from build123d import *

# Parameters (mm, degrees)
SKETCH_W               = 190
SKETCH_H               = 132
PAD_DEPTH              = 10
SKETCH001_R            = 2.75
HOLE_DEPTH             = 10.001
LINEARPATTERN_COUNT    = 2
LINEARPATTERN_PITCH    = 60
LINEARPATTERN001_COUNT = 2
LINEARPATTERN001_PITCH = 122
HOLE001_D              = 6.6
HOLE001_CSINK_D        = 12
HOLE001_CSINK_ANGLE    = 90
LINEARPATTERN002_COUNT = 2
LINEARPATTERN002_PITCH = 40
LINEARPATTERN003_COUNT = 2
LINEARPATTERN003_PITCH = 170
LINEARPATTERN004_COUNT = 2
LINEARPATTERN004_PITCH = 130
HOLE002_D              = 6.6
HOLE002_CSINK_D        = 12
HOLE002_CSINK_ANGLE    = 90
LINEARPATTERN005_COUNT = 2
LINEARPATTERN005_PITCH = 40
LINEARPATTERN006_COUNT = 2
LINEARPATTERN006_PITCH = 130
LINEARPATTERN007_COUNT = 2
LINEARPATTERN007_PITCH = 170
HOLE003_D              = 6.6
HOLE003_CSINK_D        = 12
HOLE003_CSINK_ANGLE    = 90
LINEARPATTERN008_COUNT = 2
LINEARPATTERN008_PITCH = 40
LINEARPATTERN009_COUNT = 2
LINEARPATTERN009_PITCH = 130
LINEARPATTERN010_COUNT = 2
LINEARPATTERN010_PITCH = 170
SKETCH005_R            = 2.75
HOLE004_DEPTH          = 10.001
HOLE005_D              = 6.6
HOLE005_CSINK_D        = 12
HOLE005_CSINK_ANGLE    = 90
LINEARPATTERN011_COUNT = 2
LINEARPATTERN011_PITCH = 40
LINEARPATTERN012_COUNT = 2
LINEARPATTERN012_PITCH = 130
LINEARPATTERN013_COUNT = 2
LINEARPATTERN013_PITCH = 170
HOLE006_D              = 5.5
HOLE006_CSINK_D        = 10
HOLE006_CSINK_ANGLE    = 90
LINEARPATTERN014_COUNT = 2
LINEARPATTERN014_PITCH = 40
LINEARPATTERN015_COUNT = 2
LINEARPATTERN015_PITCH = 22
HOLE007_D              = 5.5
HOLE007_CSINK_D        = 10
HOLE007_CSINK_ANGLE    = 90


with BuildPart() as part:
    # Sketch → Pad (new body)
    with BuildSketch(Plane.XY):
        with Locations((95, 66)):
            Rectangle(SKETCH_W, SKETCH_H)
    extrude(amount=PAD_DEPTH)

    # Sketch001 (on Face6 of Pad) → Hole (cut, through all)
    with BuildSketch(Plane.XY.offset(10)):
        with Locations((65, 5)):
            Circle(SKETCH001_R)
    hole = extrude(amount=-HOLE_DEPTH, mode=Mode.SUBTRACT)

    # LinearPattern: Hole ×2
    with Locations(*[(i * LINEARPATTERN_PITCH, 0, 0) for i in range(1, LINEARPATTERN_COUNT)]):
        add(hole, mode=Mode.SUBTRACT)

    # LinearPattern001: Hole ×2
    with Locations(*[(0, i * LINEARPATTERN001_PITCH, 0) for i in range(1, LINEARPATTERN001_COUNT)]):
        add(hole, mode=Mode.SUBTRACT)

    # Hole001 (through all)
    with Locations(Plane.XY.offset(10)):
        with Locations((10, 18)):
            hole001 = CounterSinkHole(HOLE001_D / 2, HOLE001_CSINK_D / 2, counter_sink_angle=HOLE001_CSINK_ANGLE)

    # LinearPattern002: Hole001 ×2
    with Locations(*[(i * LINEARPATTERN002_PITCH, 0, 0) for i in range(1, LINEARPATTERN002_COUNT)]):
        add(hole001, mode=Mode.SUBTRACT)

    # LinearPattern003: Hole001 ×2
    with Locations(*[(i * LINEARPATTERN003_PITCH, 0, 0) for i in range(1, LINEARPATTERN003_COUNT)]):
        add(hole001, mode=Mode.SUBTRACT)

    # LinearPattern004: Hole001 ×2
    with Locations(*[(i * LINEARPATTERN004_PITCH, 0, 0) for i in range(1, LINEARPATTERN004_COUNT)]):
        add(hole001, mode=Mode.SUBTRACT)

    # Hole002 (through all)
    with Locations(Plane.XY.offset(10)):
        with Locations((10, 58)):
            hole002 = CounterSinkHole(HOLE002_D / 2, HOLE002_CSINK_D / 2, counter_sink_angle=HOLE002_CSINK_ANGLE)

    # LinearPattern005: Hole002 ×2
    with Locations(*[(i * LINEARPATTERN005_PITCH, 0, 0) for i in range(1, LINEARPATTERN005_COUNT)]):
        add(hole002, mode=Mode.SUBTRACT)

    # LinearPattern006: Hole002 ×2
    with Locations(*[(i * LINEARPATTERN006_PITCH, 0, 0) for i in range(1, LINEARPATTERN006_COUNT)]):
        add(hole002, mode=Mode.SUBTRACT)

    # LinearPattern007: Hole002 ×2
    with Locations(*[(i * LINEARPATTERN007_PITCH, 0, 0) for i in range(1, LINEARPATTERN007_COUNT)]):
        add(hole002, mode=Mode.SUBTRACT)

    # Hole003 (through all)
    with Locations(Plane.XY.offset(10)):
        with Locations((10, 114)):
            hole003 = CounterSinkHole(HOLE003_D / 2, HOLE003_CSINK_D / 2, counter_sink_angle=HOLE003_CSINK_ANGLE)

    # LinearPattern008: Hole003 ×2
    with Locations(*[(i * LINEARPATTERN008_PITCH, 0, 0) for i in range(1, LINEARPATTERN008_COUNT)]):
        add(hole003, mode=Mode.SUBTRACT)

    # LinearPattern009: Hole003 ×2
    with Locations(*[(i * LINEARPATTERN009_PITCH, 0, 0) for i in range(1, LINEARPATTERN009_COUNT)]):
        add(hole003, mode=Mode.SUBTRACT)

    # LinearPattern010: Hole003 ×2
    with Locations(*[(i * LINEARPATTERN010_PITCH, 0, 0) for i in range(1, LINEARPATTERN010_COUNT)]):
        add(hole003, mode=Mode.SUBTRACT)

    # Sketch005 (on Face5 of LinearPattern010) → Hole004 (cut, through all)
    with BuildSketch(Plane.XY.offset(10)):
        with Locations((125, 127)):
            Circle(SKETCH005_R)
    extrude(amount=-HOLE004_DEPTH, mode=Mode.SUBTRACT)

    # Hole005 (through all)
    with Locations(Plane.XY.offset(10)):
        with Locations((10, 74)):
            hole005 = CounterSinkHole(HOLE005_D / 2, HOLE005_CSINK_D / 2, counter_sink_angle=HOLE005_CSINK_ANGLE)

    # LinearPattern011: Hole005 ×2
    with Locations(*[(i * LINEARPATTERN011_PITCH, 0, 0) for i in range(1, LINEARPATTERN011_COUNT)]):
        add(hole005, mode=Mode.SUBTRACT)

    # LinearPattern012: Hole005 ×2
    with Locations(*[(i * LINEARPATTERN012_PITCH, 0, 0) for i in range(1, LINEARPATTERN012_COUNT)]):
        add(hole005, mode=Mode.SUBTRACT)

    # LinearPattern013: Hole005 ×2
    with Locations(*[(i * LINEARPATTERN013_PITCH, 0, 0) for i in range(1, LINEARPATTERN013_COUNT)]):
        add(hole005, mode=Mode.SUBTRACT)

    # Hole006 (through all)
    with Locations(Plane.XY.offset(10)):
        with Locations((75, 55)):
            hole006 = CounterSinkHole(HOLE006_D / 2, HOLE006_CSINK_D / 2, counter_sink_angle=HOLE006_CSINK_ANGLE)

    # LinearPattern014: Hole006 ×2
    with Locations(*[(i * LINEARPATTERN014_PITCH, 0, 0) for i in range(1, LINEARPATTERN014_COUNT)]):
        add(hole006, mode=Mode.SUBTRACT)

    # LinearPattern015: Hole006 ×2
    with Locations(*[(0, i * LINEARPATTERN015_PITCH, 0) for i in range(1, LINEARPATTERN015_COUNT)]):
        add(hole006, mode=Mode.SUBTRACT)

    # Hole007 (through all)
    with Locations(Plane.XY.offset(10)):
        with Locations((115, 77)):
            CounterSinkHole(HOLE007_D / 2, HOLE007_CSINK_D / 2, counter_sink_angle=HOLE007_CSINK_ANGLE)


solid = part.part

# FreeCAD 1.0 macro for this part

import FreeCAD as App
import Part
import Sketcher

V = App.Vector
Q = App.Units.Quantity


def add_polygon(sketch, points):
    """Adds a closed chain of lines whose ends are joined by coincident constraints."""
    first, n = sketch.GeometryCount, len(points)
    for a, b in zip(points, points[1:] + points[:1]):
        sketch.addGeometry(Part.LineSegment(App.Vector(*a, 0), App.Vector(*b, 0)), False)
    for i in range(n):
        sketch.addConstraint(Sketcher.Constraint("Coincident", first + i, 2, first + (i + 1) % n, 1))

doc = App.newDocument("Part")
params = doc.addObject("Spreadsheet::Sheet", "Params")
for row, (alias, value) in enumerate([
    ("sketch1_width", "190 mm"),
    ("sketch1_height", "132 mm"),
    ("pad1_length", "10 mm"),
    ("sketch2_diameter", "5.5 mm"),
    ("linearpattern_pitch", "60 mm"),
    ("linearpattern2_pitch", "122 mm"),
    ("sketch3_diameter", "6.6 mm"),
    ("hole_diameter", "6.6 mm"),
    ("hole_csink_diameter", "12 mm"),
    ("linearpattern3_pitch", "40 mm"),
    ("linearpattern4_pitch", "170 mm"),
    ("linearpattern5_pitch", "130 mm"),
    ("sketch4_diameter", "6.6 mm"),
    ("hole2_diameter", "6.6 mm"),
    ("hole2_csink_diameter", "12 mm"),
    ("linearpattern6_pitch", "40 mm"),
    ("linearpattern7_pitch", "130 mm"),
    ("linearpattern8_pitch", "170 mm"),
    ("sketch5_diameter", "6.6 mm"),
    ("hole3_diameter", "6.6 mm"),
    ("hole3_csink_diameter", "12 mm"),
    ("linearpattern9_pitch", "40 mm"),
    ("linearpattern10_pitch", "130 mm"),
    ("linearpattern11_pitch", "170 mm"),
    ("sketch6_diameter", "5.5 mm"),
    ("sketch7_diameter", "6.6 mm"),
    ("hole4_diameter", "6.6 mm"),
    ("hole4_csink_diameter", "12 mm"),
    ("linearpattern12_pitch", "40 mm"),
    ("linearpattern13_pitch", "130 mm"),
    ("linearpattern14_pitch", "170 mm"),
    ("sketch8_diameter", "5.5 mm"),
    ("hole5_diameter", "5.5 mm"),
    ("hole5_csink_diameter", "10 mm"),
    ("linearpattern15_pitch", "40 mm"),
    ("linearpattern16_pitch", "22 mm"),
    ("sketch9_diameter", "5.5 mm"),
    ("hole6_diameter", "5.5 mm"),
    ("hole6_csink_diameter", "10 mm"),
], start=1):
    params.set(f"A{row}", alias)
    params.set(f"B{row}", "=" + value)
    params.setAlias(f"B{row}", alias)

body = doc.addObject("PartDesign::Body", "Body")

# Sketch on XY plane
sketch1 = doc.addObject("Sketcher::SketchObject", "Sketch")
body.addObject(sketch1)
sketch1.AttachmentSupport = (doc.XY_Plane, [""])
sketch1.MapMode = "FlatFace"
add_polygon(sketch1, [(0, 132), (0, 0), (190, 0), (190, 132)])  # lines 0-3
sketch1.addConstraint(Sketcher.Constraint("Vertical", 0))
sketch1.addConstraint(Sketcher.Constraint("Horizontal", 1))
sketch1.addConstraint(Sketcher.Constraint("Vertical", 2))
sketch1.addConstraint(Sketcher.Constraint("Horizontal", 3))
sketch1.addConstraint(Sketcher.Constraint("Coincident", 0, 2, -1, 1))
sketch1.addConstraint(Sketcher.Constraint("DistanceX", 1, 1, 1, 2, Q("190 mm")))
sketch1.addConstraint(Sketcher.Constraint("DistanceY", 0, 2, 0, 1, Q("132 mm")))
sketch1.setExpression("Constraints[9]", "Params.sketch1_width")
sketch1.setExpression("Constraints[10]", "Params.sketch1_height")
pad1 = doc.addObject("PartDesign::Pad", "Pad")
body.addObject(pad1)
pad1.Profile = sketch1
pad1.setExpression("Length", "Params.pad1_length")

# Sketch on XY plane
sketch2 = doc.addObject("Sketcher::SketchObject", "Sketch001")
body.addObject(sketch2)
sketch2.AttachmentSupport = (doc.XY_Plane, [""])
sketch2.MapMode = "FlatFace"
sketch2.AttachmentOffset = App.Placement(V(0, 0, 10), App.Rotation())
sketch2.addGeometry(Part.Circle(V(65, 5, 0), V(0, 0, 1), 2.75), False)
sketch2.addConstraint(Sketcher.Constraint("Diameter", 0, Q("5.5 mm")))
sketch2.addConstraint(Sketcher.Constraint("DistanceX", -1, 1, 0, 3, Q("65 mm")))
sketch2.addConstraint(Sketcher.Constraint("DistanceY", -1, 1, 0, 3, Q("5 mm")))
sketch2.setExpression("Constraints[0]", "Params.sketch2_diameter")
pocket1 = doc.addObject("PartDesign::Pocket", "Pocket")
body.addObject(pocket1)
pocket1.Profile = sketch2
pocket1.Type = "ThroughAll"
doc.recompute()

linearpattern = doc.addObject("PartDesign::LinearPattern", "LinearPattern")
body.addObject(linearpattern)
linearpattern.Originals = [pocket1]
linearpattern.Direction = (doc.X_Axis, [""])
linearpattern.Mode = "offset"
linearpattern.setExpression("Offset", "Params.linearpattern_pitch")
linearpattern.Occurrences = 2
body.Tip = linearpattern
doc.recompute()

linearpattern2 = doc.addObject("PartDesign::LinearPattern", "LinearPattern001")
body.addObject(linearpattern2)
linearpattern2.Originals = [pocket1]
linearpattern2.Direction = (doc.Y_Axis, [""])
linearpattern2.Mode = "offset"
linearpattern2.setExpression("Offset", "Params.linearpattern2_pitch")
linearpattern2.Occurrences = 2
body.Tip = linearpattern2

# Sketch on XY plane
sketch3 = doc.addObject("Sketcher::SketchObject", "Sketch002")
body.addObject(sketch3)
sketch3.AttachmentSupport = (doc.XY_Plane, [""])
sketch3.MapMode = "FlatFace"
sketch3.AttachmentOffset = App.Placement(V(0, 0, 10), App.Rotation())
sketch3.addGeometry(Part.Circle(V(10, 18, 0), V(0, 0, 1), 3.3), False)
sketch3.addConstraint(Sketcher.Constraint("Diameter", 0, Q("6.6 mm")))
sketch3.addConstraint(Sketcher.Constraint("DistanceX", -1, 1, 0, 3, Q("10 mm")))
sketch3.addConstraint(Sketcher.Constraint("DistanceY", -1, 1, 0, 3, Q("18 mm")))
sketch3.setExpression("Constraints[0]", "Params.sketch3_diameter")
doc.recompute()
hole = doc.addObject("PartDesign::Hole", "Hole")
body.addObject(hole)
hole.Profile = sketch3
hole.ThreadType = "None"
hole.setExpression("Diameter", "Params.hole_diameter")
hole.DepthType = "ThroughAll"
hole.HoleCutType = "Countersink"
hole.setExpression("HoleCutDiameter", "Params.hole_csink_diameter")
hole.HoleCutCountersinkAngle = 90
doc.recompute()

linearpattern3 = doc.addObject("PartDesign::LinearPattern", "LinearPattern002")
body.addObject(linearpattern3)
linearpattern3.Originals = [hole]
linearpattern3.Direction = (doc.X_Axis, [""])
linearpattern3.Mode = "offset"
linearpattern3.setExpression("Offset", "Params.linearpattern3_pitch")
linearpattern3.Occurrences = 2
body.Tip = linearpattern3
doc.recompute()

linearpattern4 = doc.addObject("PartDesign::LinearPattern", "LinearPattern003")
body.addObject(linearpattern4)
linearpattern4.Originals = [hole]
linearpattern4.Direction = (doc.X_Axis, [""])
linearpattern4.Mode = "offset"
linearpattern4.setExpression("Offset", "Params.linearpattern4_pitch")
linearpattern4.Occurrences = 2
body.Tip = linearpattern4
doc.recompute()

linearpattern5 = doc.addObject("PartDesign::LinearPattern", "LinearPattern004")
body.addObject(linearpattern5)
linearpattern5.Originals = [hole]
linearpattern5.Direction = (doc.X_Axis, [""])
linearpattern5.Mode = "offset"
linearpattern5.setExpression("Offset", "Params.linearpattern5_pitch")
linearpattern5.Occurrences = 2
body.Tip = linearpattern5

# Sketch on XY plane
sketch4 = doc.addObject("Sketcher::SketchObject", "Sketch003")
body.addObject(sketch4)
sketch4.AttachmentSupport = (doc.XY_Plane, [""])
sketch4.MapMode = "FlatFace"
sketch4.AttachmentOffset = App.Placement(V(0, 0, 10), App.Rotation())
sketch4.addGeometry(Part.Circle(V(10, 58, 0), V(0, 0, 1), 3.3), False)
sketch4.addConstraint(Sketcher.Constraint("Diameter", 0, Q("6.6 mm")))
sketch4.addConstraint(Sketcher.Constraint("DistanceX", -1, 1, 0, 3, Q("10 mm")))
sketch4.addConstraint(Sketcher.Constraint("DistanceY", -1, 1, 0, 3, Q("58 mm")))
sketch4.setExpression("Constraints[0]", "Params.sketch4_diameter")
doc.recompute()
hole2 = doc.addObject("PartDesign::Hole", "Hole001")
body.addObject(hole2)
hole2.Profile = sketch4
hole2.ThreadType = "None"
hole2.setExpression("Diameter", "Params.hole2_diameter")
hole2.DepthType = "ThroughAll"
hole2.HoleCutType = "Countersink"
hole2.setExpression("HoleCutDiameter", "Params.hole2_csink_diameter")
hole2.HoleCutCountersinkAngle = 90
doc.recompute()

linearpattern6 = doc.addObject("PartDesign::LinearPattern", "LinearPattern005")
body.addObject(linearpattern6)
linearpattern6.Originals = [hole2]
linearpattern6.Direction = (doc.X_Axis, [""])
linearpattern6.Mode = "offset"
linearpattern6.setExpression("Offset", "Params.linearpattern6_pitch")
linearpattern6.Occurrences = 2
body.Tip = linearpattern6
doc.recompute()

linearpattern7 = doc.addObject("PartDesign::LinearPattern", "LinearPattern006")
body.addObject(linearpattern7)
linearpattern7.Originals = [hole2]
linearpattern7.Direction = (doc.X_Axis, [""])
linearpattern7.Mode = "offset"
linearpattern7.setExpression("Offset", "Params.linearpattern7_pitch")
linearpattern7.Occurrences = 2
body.Tip = linearpattern7
doc.recompute()

linearpattern8 = doc.addObject("PartDesign::LinearPattern", "LinearPattern007")
body.addObject(linearpattern8)
linearpattern8.Originals = [hole2]
linearpattern8.Direction = (doc.X_Axis, [""])
linearpattern8.Mode = "offset"
linearpattern8.setExpression("Offset", "Params.linearpattern8_pitch")
linearpattern8.Occurrences = 2
body.Tip = linearpattern8

# Sketch on XY plane
sketch5 = doc.addObject("Sketcher::SketchObject", "Sketch004")
body.addObject(sketch5)
sketch5.AttachmentSupport = (doc.XY_Plane, [""])
sketch5.MapMode = "FlatFace"
sketch5.AttachmentOffset = App.Placement(V(0, 0, 10), App.Rotation())
sketch5.addGeometry(Part.Circle(V(10, 114, 0), V(0, 0, 1), 3.3), False)
sketch5.addConstraint(Sketcher.Constraint("Diameter", 0, Q("6.6 mm")))
sketch5.addConstraint(Sketcher.Constraint("DistanceX", -1, 1, 0, 3, Q("10 mm")))
sketch5.addConstraint(Sketcher.Constraint("DistanceY", -1, 1, 0, 3, Q("114 mm")))
sketch5.setExpression("Constraints[0]", "Params.sketch5_diameter")
doc.recompute()
hole3 = doc.addObject("PartDesign::Hole", "Hole002")
body.addObject(hole3)
hole3.Profile = sketch5
hole3.ThreadType = "None"
hole3.setExpression("Diameter", "Params.hole3_diameter")
hole3.DepthType = "ThroughAll"
hole3.HoleCutType = "Countersink"
hole3.setExpression("HoleCutDiameter", "Params.hole3_csink_diameter")
hole3.HoleCutCountersinkAngle = 90
doc.recompute()

linearpattern9 = doc.addObject("PartDesign::LinearPattern", "LinearPattern008")
body.addObject(linearpattern9)
linearpattern9.Originals = [hole3]
linearpattern9.Direction = (doc.X_Axis, [""])
linearpattern9.Mode = "offset"
linearpattern9.setExpression("Offset", "Params.linearpattern9_pitch")
linearpattern9.Occurrences = 2
body.Tip = linearpattern9
doc.recompute()

linearpattern10 = doc.addObject("PartDesign::LinearPattern", "LinearPattern009")
body.addObject(linearpattern10)
linearpattern10.Originals = [hole3]
linearpattern10.Direction = (doc.X_Axis, [""])
linearpattern10.Mode = "offset"
linearpattern10.setExpression("Offset", "Params.linearpattern10_pitch")
linearpattern10.Occurrences = 2
body.Tip = linearpattern10
doc.recompute()

linearpattern11 = doc.addObject("PartDesign::LinearPattern", "LinearPattern010")
body.addObject(linearpattern11)
linearpattern11.Originals = [hole3]
linearpattern11.Direction = (doc.X_Axis, [""])
linearpattern11.Mode = "offset"
linearpattern11.setExpression("Offset", "Params.linearpattern11_pitch")
linearpattern11.Occurrences = 2
body.Tip = linearpattern11

# Sketch on XY plane
sketch6 = doc.addObject("Sketcher::SketchObject", "Sketch005")
body.addObject(sketch6)
sketch6.AttachmentSupport = (doc.XY_Plane, [""])
sketch6.MapMode = "FlatFace"
sketch6.AttachmentOffset = App.Placement(V(0, 0, 10), App.Rotation())
sketch6.addGeometry(Part.Circle(V(125, 127, 0), V(0, 0, 1), 2.75), False)
sketch6.addConstraint(Sketcher.Constraint("Diameter", 0, Q("5.5 mm")))
sketch6.addConstraint(Sketcher.Constraint("DistanceX", -1, 1, 0, 3, Q("125 mm")))
sketch6.addConstraint(Sketcher.Constraint("DistanceY", -1, 1, 0, 3, Q("127 mm")))
sketch6.setExpression("Constraints[0]", "Params.sketch6_diameter")
pocket2 = doc.addObject("PartDesign::Pocket", "Pocket001")
body.addObject(pocket2)
pocket2.Profile = sketch6
pocket2.Type = "ThroughAll"

# Sketch on XY plane
sketch7 = doc.addObject("Sketcher::SketchObject", "Sketch006")
body.addObject(sketch7)
sketch7.AttachmentSupport = (doc.XY_Plane, [""])
sketch7.MapMode = "FlatFace"
sketch7.AttachmentOffset = App.Placement(V(0, 0, 10), App.Rotation())
sketch7.addGeometry(Part.Circle(V(10, 74, 0), V(0, 0, 1), 3.3), False)
sketch7.addConstraint(Sketcher.Constraint("Diameter", 0, Q("6.6 mm")))
sketch7.addConstraint(Sketcher.Constraint("DistanceX", -1, 1, 0, 3, Q("10 mm")))
sketch7.addConstraint(Sketcher.Constraint("DistanceY", -1, 1, 0, 3, Q("74 mm")))
sketch7.setExpression("Constraints[0]", "Params.sketch7_diameter")
doc.recompute()
hole4 = doc.addObject("PartDesign::Hole", "Hole003")
body.addObject(hole4)
hole4.Profile = sketch7
hole4.ThreadType = "None"
hole4.setExpression("Diameter", "Params.hole4_diameter")
hole4.DepthType = "ThroughAll"
hole4.HoleCutType = "Countersink"
hole4.setExpression("HoleCutDiameter", "Params.hole4_csink_diameter")
hole4.HoleCutCountersinkAngle = 90
doc.recompute()

linearpattern12 = doc.addObject("PartDesign::LinearPattern", "LinearPattern011")
body.addObject(linearpattern12)
linearpattern12.Originals = [hole4]
linearpattern12.Direction = (doc.X_Axis, [""])
linearpattern12.Mode = "offset"
linearpattern12.setExpression("Offset", "Params.linearpattern12_pitch")
linearpattern12.Occurrences = 2
body.Tip = linearpattern12
doc.recompute()

linearpattern13 = doc.addObject("PartDesign::LinearPattern", "LinearPattern012")
body.addObject(linearpattern13)
linearpattern13.Originals = [hole4]
linearpattern13.Direction = (doc.X_Axis, [""])
linearpattern13.Mode = "offset"
linearpattern13.setExpression("Offset", "Params.linearpattern13_pitch")
linearpattern13.Occurrences = 2
body.Tip = linearpattern13
doc.recompute()

linearpattern14 = doc.addObject("PartDesign::LinearPattern", "LinearPattern013")
body.addObject(linearpattern14)
linearpattern14.Originals = [hole4]
linearpattern14.Direction = (doc.X_Axis, [""])
linearpattern14.Mode = "offset"
linearpattern14.setExpression("Offset", "Params.linearpattern14_pitch")
linearpattern14.Occurrences = 2
body.Tip = linearpattern14

# Sketch on XY plane
sketch8 = doc.addObject("Sketcher::SketchObject", "Sketch007")
body.addObject(sketch8)
sketch8.AttachmentSupport = (doc.XY_Plane, [""])
sketch8.MapMode = "FlatFace"
sketch8.AttachmentOffset = App.Placement(V(0, 0, 10), App.Rotation())
sketch8.addGeometry(Part.Circle(V(75, 55, 0), V(0, 0, 1), 2.75), False)
sketch8.addConstraint(Sketcher.Constraint("Diameter", 0, Q("5.5 mm")))
sketch8.addConstraint(Sketcher.Constraint("DistanceX", -1, 1, 0, 3, Q("75 mm")))
sketch8.addConstraint(Sketcher.Constraint("DistanceY", -1, 1, 0, 3, Q("55 mm")))
sketch8.setExpression("Constraints[0]", "Params.sketch8_diameter")
doc.recompute()
hole5 = doc.addObject("PartDesign::Hole", "Hole004")
body.addObject(hole5)
hole5.Profile = sketch8
hole5.ThreadType = "None"
hole5.setExpression("Diameter", "Params.hole5_diameter")
hole5.DepthType = "ThroughAll"
hole5.HoleCutType = "Countersink"
hole5.setExpression("HoleCutDiameter", "Params.hole5_csink_diameter")
hole5.HoleCutCountersinkAngle = 90
doc.recompute()

linearpattern15 = doc.addObject("PartDesign::LinearPattern", "LinearPattern014")
body.addObject(linearpattern15)
linearpattern15.Originals = [hole5]
linearpattern15.Direction = (doc.X_Axis, [""])
linearpattern15.Mode = "offset"
linearpattern15.setExpression("Offset", "Params.linearpattern15_pitch")
linearpattern15.Occurrences = 2
body.Tip = linearpattern15
doc.recompute()

linearpattern16 = doc.addObject("PartDesign::LinearPattern", "LinearPattern015")
body.addObject(linearpattern16)
linearpattern16.Originals = [hole5]
linearpattern16.Direction = (doc.Y_Axis, [""])
linearpattern16.Mode = "offset"
linearpattern16.setExpression("Offset", "Params.linearpattern16_pitch")
linearpattern16.Occurrences = 2
body.Tip = linearpattern16

# Sketch on XY plane
sketch9 = doc.addObject("Sketcher::SketchObject", "Sketch008")
body.addObject(sketch9)
sketch9.AttachmentSupport = (doc.XY_Plane, [""])
sketch9.MapMode = "FlatFace"
sketch9.AttachmentOffset = App.Placement(V(0, 0, 10), App.Rotation())
sketch9.addGeometry(Part.Circle(V(115, 77, 0), V(0, 0, 1), 2.75), False)
sketch9.addConstraint(Sketcher.Constraint("Diameter", 0, Q("5.5 mm")))
sketch9.addConstraint(Sketcher.Constraint("DistanceX", -1, 1, 0, 3, Q("115 mm")))
sketch9.addConstraint(Sketcher.Constraint("DistanceY", -1, 1, 0, 3, Q("77 mm")))
sketch9.setExpression("Constraints[0]", "Params.sketch9_diameter")
doc.recompute()
hole6 = doc.addObject("PartDesign::Hole", "Hole005")
body.addObject(hole6)
hole6.Profile = sketch9
hole6.ThreadType = "None"
hole6.setExpression("Diameter", "Params.hole6_diameter")
hole6.DepthType = "ThroughAll"
hole6.HoleCutType = "Countersink"
hole6.setExpression("HoleCutDiameter", "Params.hole6_csink_diameter")
hole6.HoleCutCountersinkAngle = 90

doc.recompute()
